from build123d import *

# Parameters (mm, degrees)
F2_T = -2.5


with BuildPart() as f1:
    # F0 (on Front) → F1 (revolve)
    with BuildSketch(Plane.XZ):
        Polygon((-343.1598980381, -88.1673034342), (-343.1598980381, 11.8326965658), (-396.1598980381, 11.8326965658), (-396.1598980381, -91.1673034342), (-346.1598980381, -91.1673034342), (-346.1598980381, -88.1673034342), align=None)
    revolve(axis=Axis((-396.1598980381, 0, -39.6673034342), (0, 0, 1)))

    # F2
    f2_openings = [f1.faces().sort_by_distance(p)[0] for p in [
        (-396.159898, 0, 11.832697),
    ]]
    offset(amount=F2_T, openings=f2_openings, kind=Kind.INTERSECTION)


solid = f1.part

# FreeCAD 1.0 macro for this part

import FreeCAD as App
import Part
import Sketcher
from FreeCAD import Vector


def faces_at(feature, points):
    """Names of the faces that lie closest to the given points."""
    faces = feature.Shape.Faces
    near = lambda p: min(range(len(faces)), key=lambda i: faces[i].distToShape(Part.Vertex(*p))[0])
    return sorted({f"Face{near(p) + 1}" for p in points})


def add_polygon(sketch, points):
    """Adds a closed chain of lines whose ends are joined by coincident constraints."""
    first, n = sketch.GeometryCount, len(points)
    for a, b in zip(points, points[1:] + points[:1]):
        sketch.addGeometry(Part.LineSegment(App.Vector(*a, 0), App.Vector(*b, 0)), False)
    for i in range(n):
        sketch.addConstraint(Sketcher.Constraint("Coincident", first + i, 2, first + (i + 1) % n, 1))

doc = App.newDocument("Part")
body = doc.addObject("PartDesign::Body", "Body")

sketch1 = doc.addObject("Sketcher::SketchObject", "Sketch")
body.addObject(sketch1)
sketch1.AttachmentSupport = (doc.XZ_Plane, [""])
sketch1.MapMode = "FlatFace"
add_polygon(sketch1, [(-343.2, -88.2), (-343.2, 11.8), (-396.2, 11.8), (-396.2, -91.2), (-346.2, -91.2), (-346.2, -88.2)])
sketch1.addGeometry(Part.LineSegment(Vector(-396.2, -91.2, 0), Vector(-396.2, 11.8, 0)), True)
sketch1.addConstraint(Sketcher.Constraint("Vertical", 0))
sketch1.addConstraint(Sketcher.Constraint("Horizontal", 1))
sketch1.addConstraint(Sketcher.Constraint("Vertical", 2))
sketch1.addConstraint(Sketcher.Constraint("Horizontal", 3))
sketch1.addConstraint(Sketcher.Constraint("Vertical", 4))
sketch1.addConstraint(Sketcher.Constraint("Horizontal", 5))
sketch1.addConstraint(Sketcher.Constraint("Vertical", 6))
sketch1.addConstraint(Sketcher.Constraint("Coincident", 6, 1, 2, 2))
sketch1.addConstraint(Sketcher.Constraint("Horizontal", 0, 2, 6, 2))
sketch1.addConstraint(Sketcher.Constraint("Equal", 5, 4))
sketch1.addConstraint(Sketcher.Constraint("DistanceX", 1, 2, 1, 1, 53.0))
sketch1.addConstraint(Sketcher.Constraint("DistanceX", 3, 1, 3, 2, 50.0))
sketch1.addConstraint(Sketcher.Constraint("DistanceY", 0, 1, 0, 2, 100.0))
sketch1.addConstraint(Sketcher.Constraint("DistanceX", 0, 2, -1, 1, 343.159898))
sketch1.addConstraint(Sketcher.Constraint("DistanceY", -1, 1, 0, 2, 11.832697))
revolution = doc.addObject("PartDesign::Revolution", "Revolution")
body.addObject(revolution)
revolution.Profile = sketch1
revolution.ReferenceAxis = (sketch1, ["Axis0"])
revolution.Angle = 360
doc.recompute()

thickness = doc.addObject("PartDesign::Thickness", "Thickness")
body.addObject(thickness)
thickness.Base = (revolution, faces_at(revolution, [(-396.16, 0, 11.833)]))
thickness.Value = 2.5
thickness.Reversed = True
thickness.Join = "Intersection"

doc.recompute()
